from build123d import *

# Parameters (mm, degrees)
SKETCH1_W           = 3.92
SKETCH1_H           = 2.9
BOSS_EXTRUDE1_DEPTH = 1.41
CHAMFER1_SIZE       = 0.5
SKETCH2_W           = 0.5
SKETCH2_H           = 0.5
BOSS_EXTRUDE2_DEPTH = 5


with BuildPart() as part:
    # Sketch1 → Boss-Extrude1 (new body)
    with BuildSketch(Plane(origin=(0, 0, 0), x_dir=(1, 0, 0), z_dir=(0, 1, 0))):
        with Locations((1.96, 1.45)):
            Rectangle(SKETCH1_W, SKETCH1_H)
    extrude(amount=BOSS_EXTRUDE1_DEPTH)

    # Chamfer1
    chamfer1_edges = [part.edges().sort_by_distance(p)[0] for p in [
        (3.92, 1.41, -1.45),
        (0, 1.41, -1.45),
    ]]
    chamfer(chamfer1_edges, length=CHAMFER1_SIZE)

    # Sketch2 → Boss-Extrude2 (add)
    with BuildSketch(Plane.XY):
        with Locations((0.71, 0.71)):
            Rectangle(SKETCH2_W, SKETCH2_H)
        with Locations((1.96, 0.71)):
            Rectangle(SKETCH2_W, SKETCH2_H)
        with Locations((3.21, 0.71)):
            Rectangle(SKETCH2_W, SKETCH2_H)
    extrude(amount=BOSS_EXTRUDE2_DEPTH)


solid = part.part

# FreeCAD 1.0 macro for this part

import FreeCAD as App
import Part
import Sketcher
from FreeCAD import Vector
Q = App.Units.Quantity


def edges_at(feature, points):
    """Names of the edges that pass closest to the given points."""
    edges = feature.Shape.Edges
    near = lambda p: min(range(len(edges)), key=lambda i: edges[i].distToShape(Part.Vertex(*p))[0])
    return sorted({f"Edge{near(p) + 1}" for p in points})

doc = App.newDocument("Part")
body = doc.addObject("PartDesign::Body", "Body")

sketch1 = body.newObject("Sketcher::SketchObject", "Sketch")
sketch1.AttachmentSupport = (doc.getObject("XZ_Plane"), [""])
sketch1.MapMode = "FlatFace"
sketch1.addGeometry([
    Part.LineSegment(Vector(0, -2.9, 0), Vector(0, 0, 0)),
    Part.LineSegment(Vector(0, 0, 0), Vector(3.9, 0, 0)),
    Part.LineSegment(Vector(3.9, 0, 0), Vector(3.9, -2.9, 0)),
    Part.LineSegment(Vector(3.9, -2.9, 0), Vector(0, -2.9, 0)),
], False)
sketch1.addConstraint([
    Sketcher.Constraint("Coincident", 0, 2, 1, 1),
    Sketcher.Constraint("Coincident", 1, 2, 2, 1),
    Sketcher.Constraint("Coincident", 2, 2, 3, 1),
    Sketcher.Constraint("Coincident", 3, 2, 0, 1),
    Sketcher.Constraint("Vertical", 0),
    Sketcher.Constraint("Horizontal", 1),
    Sketcher.Constraint("Vertical", 2),
    Sketcher.Constraint("Horizontal", 3),
    Sketcher.Constraint("Coincident", 0, 2, -1, 1),
    Sketcher.Constraint("DistanceY", 0, 1, 0, 2, Q("2.9 mm")),
    Sketcher.Constraint("DistanceX", 1, 1, 1, 2, Q("3.92 mm")),
])
pad1 = body.newObject("PartDesign::Pad", "Pad")
pad1.Profile = sketch1
pad1.Length = 1.41
pad1.Reversed = True
doc.recompute()

chamfer = body.newObject("PartDesign::Chamfer", "Chamfer")
chamfer.Base = (pad1, edges_at(pad1, [(3.92, 1.41, -1.45), (0, 1.41, -1.45)]))
chamfer.Size = 0.5

sketch2 = body.newObject("Sketcher::SketchObject", "Sketch001")
sketch2.AttachmentSupport = (doc.getObject("XY_Plane"), [""])
sketch2.MapMode = "FlatFace"
sketch2.addGeometry([
    Part.LineSegment(Vector(0.46, 0.96, 0), Vector(0.46, 0.46, 0)),
    Part.LineSegment(Vector(0.46, 0.46, 0), Vector(0.96, 0.46, 0)),
    Part.LineSegment(Vector(0.96, 0.46, 0), Vector(0.96, 0.96, 0)),
    Part.LineSegment(Vector(0.96, 0.96, 0), Vector(0.46, 0.96, 0)),
    Part.LineSegment(Vector(1.71, 0.96, 0), Vector(1.71, 0.46, 0)),
    Part.LineSegment(Vector(1.71, 0.46, 0), Vector(2.21, 0.46, 0)),
    Part.LineSegment(Vector(2.21, 0.46, 0), Vector(2.21, 0.96, 0)),
    Part.LineSegment(Vector(2.21, 0.96, 0), Vector(1.71, 0.96, 0)),
    Part.LineSegment(Vector(2.96, 0.96, 0), Vector(2.96, 0.46, 0)),
    Part.LineSegment(Vector(2.96, 0.46, 0), Vector(3.46, 0.46, 0)),
    Part.LineSegment(Vector(3.46, 0.46, 0), Vector(3.46, 0.96, 0)),
    Part.LineSegment(Vector(3.46, 0.96, 0), Vector(2.96, 0.96, 0)),
], False)
sketch2.addConstraint([
    Sketcher.Constraint("Coincident", 0, 2, 1, 1),
    Sketcher.Constraint("Coincident", 1, 2, 2, 1),
    Sketcher.Constraint("Coincident", 2, 2, 3, 1),
    Sketcher.Constraint("Coincident", 3, 2, 0, 1),
    Sketcher.Constraint("Coincident", 4, 2, 5, 1),
    Sketcher.Constraint("Coincident", 5, 2, 6, 1),
    Sketcher.Constraint("Coincident", 6, 2, 7, 1),
    Sketcher.Constraint("Coincident", 7, 2, 4, 1),
    Sketcher.Constraint("Coincident", 8, 2, 9, 1),
    Sketcher.Constraint("Coincident", 9, 2, 10, 1),
    Sketcher.Constraint("Coincident", 10, 2, 11, 1),
    Sketcher.Constraint("Coincident", 11, 2, 8, 1),
    Sketcher.Constraint("Vertical", 0),
    Sketcher.Constraint("Horizontal", 1),
    Sketcher.Constraint("Vertical", 2),
    Sketcher.Constraint("Horizontal", 3),
    Sketcher.Constraint("Vertical", 4),
    Sketcher.Constraint("Horizontal", 5),
    Sketcher.Constraint("Vertical", 6),
    Sketcher.Constraint("Horizontal", 7),
    Sketcher.Constraint("Vertical", 8),
    Sketcher.Constraint("Horizontal", 9),
    Sketcher.Constraint("Vertical", 10),
    Sketcher.Constraint("Horizontal", 11),
    Sketcher.Constraint("Horizontal", 1, 2, 4, 2),
    Sketcher.Constraint("Horizontal", 3, 2, 6, 2),
    Sketcher.Constraint("Horizontal", 5, 2, 8, 2),
    Sketcher.Constraint("Horizontal", 7, 2, 10, 2),
    Sketcher.Constraint("Equal", 3, 5),
    Sketcher.Constraint("Equal", 7, 9),
    Sketcher.Constraint("Equal", 11, 0),
    Sketcher.Constraint("DistanceX", 1, 1, 1, 2, Q("0.5 mm")),
    Sketcher.Constraint("DistanceX", 1, 2, 8, 2, Q("2 mm")),
    Sketcher.Constraint("DistanceX", -1, 1, 0, 2, Q("0.46 mm")),
    Sketcher.Constraint("DistanceY", -1, 1, 0, 2, Q("0.46 mm")),
    Sketcher.Constraint("DistanceX", -1, 1, 4, 2, Q("1.71 mm")),
])
pad2 = body.newObject("PartDesign::Pad", "Pad001")
pad2.Profile = sketch2
pad2.Length = 5

doc.recompute()
